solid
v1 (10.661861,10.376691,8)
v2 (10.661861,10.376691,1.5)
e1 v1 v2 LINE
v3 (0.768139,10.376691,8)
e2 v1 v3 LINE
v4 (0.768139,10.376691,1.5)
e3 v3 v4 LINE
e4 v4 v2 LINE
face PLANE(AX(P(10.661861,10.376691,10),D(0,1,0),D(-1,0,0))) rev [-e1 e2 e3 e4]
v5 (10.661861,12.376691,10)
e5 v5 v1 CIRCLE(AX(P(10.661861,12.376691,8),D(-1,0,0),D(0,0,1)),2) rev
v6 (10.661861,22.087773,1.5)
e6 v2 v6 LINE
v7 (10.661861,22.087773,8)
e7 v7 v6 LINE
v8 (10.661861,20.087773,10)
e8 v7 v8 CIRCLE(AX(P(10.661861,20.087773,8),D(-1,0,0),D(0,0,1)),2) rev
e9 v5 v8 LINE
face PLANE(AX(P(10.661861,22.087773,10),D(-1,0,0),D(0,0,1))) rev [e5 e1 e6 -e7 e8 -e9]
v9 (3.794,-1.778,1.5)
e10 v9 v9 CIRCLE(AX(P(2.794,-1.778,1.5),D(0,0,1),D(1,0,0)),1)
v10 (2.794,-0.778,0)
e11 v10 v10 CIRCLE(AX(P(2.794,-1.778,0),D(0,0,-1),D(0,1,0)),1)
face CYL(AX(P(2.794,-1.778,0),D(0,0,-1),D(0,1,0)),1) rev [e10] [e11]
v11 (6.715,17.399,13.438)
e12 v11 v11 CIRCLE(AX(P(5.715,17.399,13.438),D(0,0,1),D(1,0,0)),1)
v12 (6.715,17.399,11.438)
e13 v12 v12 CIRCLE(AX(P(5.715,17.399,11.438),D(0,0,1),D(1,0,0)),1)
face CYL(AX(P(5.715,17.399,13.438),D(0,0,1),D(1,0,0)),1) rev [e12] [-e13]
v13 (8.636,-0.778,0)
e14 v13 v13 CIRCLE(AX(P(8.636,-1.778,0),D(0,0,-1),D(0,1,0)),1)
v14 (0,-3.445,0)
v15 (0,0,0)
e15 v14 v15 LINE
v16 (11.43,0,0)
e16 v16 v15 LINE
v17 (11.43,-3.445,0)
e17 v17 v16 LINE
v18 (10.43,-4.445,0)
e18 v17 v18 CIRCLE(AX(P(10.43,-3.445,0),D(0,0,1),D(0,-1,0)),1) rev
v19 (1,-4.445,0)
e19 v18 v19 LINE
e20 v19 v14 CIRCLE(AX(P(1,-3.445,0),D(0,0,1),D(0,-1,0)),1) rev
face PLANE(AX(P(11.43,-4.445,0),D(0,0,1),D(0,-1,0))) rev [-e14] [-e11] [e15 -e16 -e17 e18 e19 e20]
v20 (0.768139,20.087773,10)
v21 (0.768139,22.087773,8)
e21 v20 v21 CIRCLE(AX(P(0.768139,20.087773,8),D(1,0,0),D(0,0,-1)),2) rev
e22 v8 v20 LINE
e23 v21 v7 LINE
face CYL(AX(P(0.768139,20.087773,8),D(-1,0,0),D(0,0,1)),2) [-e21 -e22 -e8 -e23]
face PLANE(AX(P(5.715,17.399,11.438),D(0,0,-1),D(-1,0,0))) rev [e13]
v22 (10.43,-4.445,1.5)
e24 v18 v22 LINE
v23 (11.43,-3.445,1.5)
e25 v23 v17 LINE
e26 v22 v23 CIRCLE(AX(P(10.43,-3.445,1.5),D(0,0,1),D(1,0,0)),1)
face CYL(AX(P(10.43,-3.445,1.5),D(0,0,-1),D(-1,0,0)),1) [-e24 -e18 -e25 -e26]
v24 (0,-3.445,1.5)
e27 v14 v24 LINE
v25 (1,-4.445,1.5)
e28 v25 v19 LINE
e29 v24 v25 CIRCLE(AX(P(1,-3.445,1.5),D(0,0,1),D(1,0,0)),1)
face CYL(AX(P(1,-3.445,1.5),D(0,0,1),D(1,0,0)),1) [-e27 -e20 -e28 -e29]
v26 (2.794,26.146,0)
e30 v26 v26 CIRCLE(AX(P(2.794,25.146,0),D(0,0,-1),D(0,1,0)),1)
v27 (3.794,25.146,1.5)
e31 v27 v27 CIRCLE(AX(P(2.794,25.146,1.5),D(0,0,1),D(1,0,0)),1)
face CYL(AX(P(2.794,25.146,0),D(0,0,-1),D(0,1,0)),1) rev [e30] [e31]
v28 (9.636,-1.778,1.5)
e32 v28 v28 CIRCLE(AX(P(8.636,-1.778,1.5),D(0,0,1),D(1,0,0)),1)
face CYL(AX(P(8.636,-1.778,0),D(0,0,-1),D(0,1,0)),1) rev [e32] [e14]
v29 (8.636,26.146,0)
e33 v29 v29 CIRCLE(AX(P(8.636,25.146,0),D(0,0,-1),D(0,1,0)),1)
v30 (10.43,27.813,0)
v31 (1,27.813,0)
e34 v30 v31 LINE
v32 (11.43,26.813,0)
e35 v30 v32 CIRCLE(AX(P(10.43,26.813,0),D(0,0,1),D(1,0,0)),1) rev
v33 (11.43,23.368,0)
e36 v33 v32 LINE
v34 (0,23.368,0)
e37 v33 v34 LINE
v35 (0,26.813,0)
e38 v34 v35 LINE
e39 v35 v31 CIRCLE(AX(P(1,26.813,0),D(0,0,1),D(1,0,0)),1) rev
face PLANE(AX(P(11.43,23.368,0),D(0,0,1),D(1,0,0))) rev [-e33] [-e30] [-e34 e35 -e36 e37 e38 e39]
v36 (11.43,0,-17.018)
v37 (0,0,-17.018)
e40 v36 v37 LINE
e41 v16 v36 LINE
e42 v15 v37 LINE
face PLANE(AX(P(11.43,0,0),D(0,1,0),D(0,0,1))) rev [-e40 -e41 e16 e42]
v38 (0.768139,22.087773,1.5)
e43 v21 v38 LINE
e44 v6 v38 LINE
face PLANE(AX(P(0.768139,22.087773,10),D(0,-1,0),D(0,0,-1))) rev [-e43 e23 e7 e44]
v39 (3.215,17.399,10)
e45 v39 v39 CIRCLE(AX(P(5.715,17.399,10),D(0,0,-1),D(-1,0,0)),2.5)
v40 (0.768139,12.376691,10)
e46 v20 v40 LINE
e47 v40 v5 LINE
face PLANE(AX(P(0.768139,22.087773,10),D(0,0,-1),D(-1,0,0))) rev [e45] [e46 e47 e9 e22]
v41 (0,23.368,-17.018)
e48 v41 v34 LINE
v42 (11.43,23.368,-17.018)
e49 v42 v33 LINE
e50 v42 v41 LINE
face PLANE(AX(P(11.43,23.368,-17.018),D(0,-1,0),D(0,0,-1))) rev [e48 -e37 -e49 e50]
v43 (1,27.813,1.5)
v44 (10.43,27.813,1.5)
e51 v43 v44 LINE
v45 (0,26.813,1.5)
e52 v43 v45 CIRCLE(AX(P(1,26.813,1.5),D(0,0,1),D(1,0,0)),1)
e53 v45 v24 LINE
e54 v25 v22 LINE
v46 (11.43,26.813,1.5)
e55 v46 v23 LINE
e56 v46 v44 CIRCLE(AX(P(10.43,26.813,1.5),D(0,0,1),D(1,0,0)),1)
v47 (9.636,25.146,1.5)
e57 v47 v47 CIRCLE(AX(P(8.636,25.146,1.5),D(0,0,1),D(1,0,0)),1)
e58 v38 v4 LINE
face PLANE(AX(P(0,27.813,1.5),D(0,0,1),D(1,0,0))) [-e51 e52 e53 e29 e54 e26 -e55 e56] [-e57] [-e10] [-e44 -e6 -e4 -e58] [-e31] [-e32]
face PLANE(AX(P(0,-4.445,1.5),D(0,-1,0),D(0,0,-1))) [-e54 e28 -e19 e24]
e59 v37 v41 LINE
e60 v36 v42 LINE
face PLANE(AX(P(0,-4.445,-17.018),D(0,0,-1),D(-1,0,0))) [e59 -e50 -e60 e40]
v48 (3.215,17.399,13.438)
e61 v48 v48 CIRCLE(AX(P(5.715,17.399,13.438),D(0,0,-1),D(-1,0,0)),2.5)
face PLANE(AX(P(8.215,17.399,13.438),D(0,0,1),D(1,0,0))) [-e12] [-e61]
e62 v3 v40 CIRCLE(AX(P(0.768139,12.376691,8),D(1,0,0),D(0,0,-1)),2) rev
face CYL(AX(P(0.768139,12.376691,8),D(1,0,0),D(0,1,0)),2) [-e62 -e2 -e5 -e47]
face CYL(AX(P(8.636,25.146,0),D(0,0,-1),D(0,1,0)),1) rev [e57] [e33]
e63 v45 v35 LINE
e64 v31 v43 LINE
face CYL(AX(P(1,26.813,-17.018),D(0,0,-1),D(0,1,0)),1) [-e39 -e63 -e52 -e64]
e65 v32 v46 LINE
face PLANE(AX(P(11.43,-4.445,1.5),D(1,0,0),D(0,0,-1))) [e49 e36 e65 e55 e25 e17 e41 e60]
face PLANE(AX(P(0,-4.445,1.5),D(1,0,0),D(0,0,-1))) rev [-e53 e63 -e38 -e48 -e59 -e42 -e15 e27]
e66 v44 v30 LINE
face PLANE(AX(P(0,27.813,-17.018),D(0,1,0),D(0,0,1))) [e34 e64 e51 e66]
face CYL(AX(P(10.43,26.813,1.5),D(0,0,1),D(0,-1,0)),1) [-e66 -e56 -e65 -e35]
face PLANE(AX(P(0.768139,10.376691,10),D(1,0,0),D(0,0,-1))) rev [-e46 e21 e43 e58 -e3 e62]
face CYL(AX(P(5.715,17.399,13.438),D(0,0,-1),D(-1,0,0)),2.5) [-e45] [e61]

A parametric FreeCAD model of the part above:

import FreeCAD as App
import Part
import Sketcher
from FreeCAD import Vector
Q = App.Units.Quantity


def edges_at(feature, points):
    """Names of the edges that pass closest to the given points."""
    edges = feature.Shape.Edges
    near = lambda p: min(range(len(edges)), key=lambda i: edges[i].distToShape(Part.Vertex(*p))[0])
    return sorted({f"Edge{near(p) + 1}" for p in points})


def add_polygon(sketch, points):
    """Adds a closed chain of lines whose ends are joined by coincident constraints."""
    first, n = sketch.GeometryCount, len(points)
    for a, b in zip(points, points[1:] + points[:1]):
        sketch.addGeometry(Part.LineSegment(App.Vector(*a, 0), App.Vector(*b, 0)), False)
    for i in range(n):
        sketch.addConstraint(Sketcher.Constraint("Coincident", first + i, 2, first + (i + 1) % n, 1))

doc = App.newDocument("Part")
body = doc.addObject("PartDesign::Body", "Body")

# Sketch on YZ plane
sketch1 = doc.addObject("Sketcher::SketchObject", "Sketch")
body.addObject(sketch1)
sketch1.AttachmentSupport = (doc.YZ_Plane, [""])
sketch1.MapMode = "FlatFace"
sketch1.AttachmentOffset = App.Placement(Vector(0, 0, 11.43), App.Rotation())
add_polygon(sketch1, [(27.813, 1.5), (-4.445, 1.5), (-4.445, -17.018), (27.813, -17.018)])  # lines 0-3
sketch1.addConstraint([
    Sketcher.Constraint("Horizontal", 0),
    Sketcher.Constraint("Vertical", 1),
    Sketcher.Constraint("Horizontal", 2),
    Sketcher.Constraint("Vertical", 3),
    Sketcher.Constraint("DistanceY", -1, 1, 0, 2, Q("1.5 mm")),
    Sketcher.Constraint("DistanceX", 0, 2, 0, 1, Q("32.258 mm")),
    Sketcher.Constraint("DistanceY", 1, 2, 1, 1, Q("18.518 mm")),
    Sketcher.Constraint("DistanceX", 0, 2, -1, 1, Q("4.445 mm")),
])
pad1 = doc.addObject("PartDesign::Pad", "Pad")
body.addObject(pad1)
pad1.Profile = sketch1
pad1.Length = 11.43
pad1.Reversed = True

# Sketch on YZ plane
sketch2 = doc.addObject("Sketcher::SketchObject", "Sketch001")
body.addObject(sketch2)
sketch2.AttachmentSupport = (doc.YZ_Plane, [""])
sketch2.MapMode = "FlatFace"
add_polygon(sketch2, [(0, -17.018), (-4.445, -17.018), (-4.445, 0), (0, 0)])  # lines 0-3
sketch2.addConstraint([
    Sketcher.Constraint("Horizontal", 0),
    Sketcher.Constraint("Vertical", 1),
    Sketcher.Constraint("Horizontal", 2),
    Sketcher.Constraint("Vertical", 3),
    Sketcher.Constraint("Coincident", 2, 2, -1, 1),
    Sketcher.Constraint("DistanceX", 0, 2, 0, 1, Q("4.445 mm")),
    Sketcher.Constraint("DistanceY", 1, 1, 1, 2, Q("17.018 mm")),
])
pocket1 = doc.addObject("PartDesign::Pocket", "Pocket")
body.addObject(pocket1)
pocket1.Profile = sketch2
pocket1.Type = "ThroughAll"
pocket1.Reversed = True

# Sketch on YZ plane
sketch3 = doc.addObject("Sketcher::SketchObject", "Sketch002")
body.addObject(sketch3)
sketch3.AttachmentSupport = (doc.YZ_Plane, [""])
sketch3.MapMode = "FlatFace"
add_polygon(sketch3, [(27.813, -17.018), (23.368, -17.018), (23.368, 0), (27.813, 0)])  # lines 0-3
sketch3.addConstraint([
    Sketcher.Constraint("Horizontal", 0),
    Sketcher.Constraint("Vertical", 1),
    Sketcher.Constraint("Horizontal", 2),
    Sketcher.Constraint("Vertical", 3),
    Sketcher.Constraint("PointOnObject", 1, 2, -1),
    Sketcher.Constraint("DistanceX", 0, 2, 0, 1, Q("4.445 mm")),
    Sketcher.Constraint("DistanceY", 1, 1, 1, 2, Q("17.018 mm")),
    Sketcher.Constraint("DistanceX", -1, 1, 0, 2, Q("23.368 mm")),
])
pocket2 = doc.addObject("PartDesign::Pocket", "Pocket001")
body.addObject(pocket2)
pocket2.Profile = sketch3
pocket2.Type = "ThroughAll"
pocket2.Reversed = True

# Sketch on XY plane
sketch4 = doc.addObject("Sketcher::SketchObject", "Sketch003")
body.addObject(sketch4)
sketch4.AttachmentSupport = (doc.XY_Plane, [""])
sketch4.MapMode = "FlatFace"
sketch4.AttachmentOffset = App.Placement(Vector(0, 0, 1.5), App.Rotation())
add_polygon(sketch4, [(0.768139, 22.087773), (0.768139, 10.376691), (10.661861, 10.376691), (10.661861, 22.087773)])  # lines 0-3
sketch4.addConstraint([
    Sketcher.Constraint("Vertical", 0),
    Sketcher.Constraint("Horizontal", 1),
    Sketcher.Constraint("Vertical", 2),
    Sketcher.Constraint("Horizontal", 3),
    Sketcher.Constraint("DistanceY", 0, 2, 0, 1, Q("11.711082 mm")),
    Sketcher.Constraint("DistanceX", 1, 1, 1, 2, Q("9.893723 mm")),
    Sketcher.Constraint("DistanceX", -1, 1, 0, 2, Q("0.768139 mm")),
    Sketcher.Constraint("DistanceY", -1, 1, 0, 2, Q("10.376691 mm")),
])
pad2 = doc.addObject("PartDesign::Pad", "Pad001")
body.addObject(pad2)
pad2.Profile = sketch4
pad2.Length = 8.5

# Sketch on XZ plane
sketch5 = doc.addObject("Sketcher::SketchObject", "Sketch004")
body.addObject(sketch5)
sketch5.AttachmentSupport = (doc.XZ_Plane, [""])
sketch5.MapMode = "FlatFace"
sketch5.AttachmentOffset = App.Placement(Vector(0, 0, -17.399), App.Rotation())
add_polygon(sketch5, [(5.715, 13.438), (5.715, 10), (8.215, 10), (8.215, 13.438)])  # lines 0-3
sketch5.addGeometry(Part.LineSegment(Vector(5.715, 13.438, 0), Vector(5.715, 10, 0)), True)  # axis
sketch5.addConstraint([
    Sketcher.Constraint("Vertical", 0),
    Sketcher.Constraint("Horizontal", 1),
    Sketcher.Constraint("Vertical", 2),
    Sketcher.Constraint("Horizontal", 3),
    Sketcher.Constraint("Vertical", 4),
    Sketcher.Constraint("Coincident", 4, 1, 3, 2),
    Sketcher.Constraint("Horizontal", 1, 2, 4, 2),
    Sketcher.Constraint("DistanceX", 1, 1, 1, 2, Q("2.5 mm")),
    Sketcher.Constraint("DistanceY", -1, 1, 0, 2, Q("10 mm")),
    Sketcher.Constraint("DistanceY", 0, 2, 0, 1, Q("3.438 mm")),
    Sketcher.Constraint("DistanceX", -1, 1, 0, 2, Q("5.715 mm")),
])
revolution = doc.addObject("PartDesign::Revolution", "Revolution")
body.addObject(revolution)
revolution.Profile = sketch5
revolution.ReferenceAxis = (sketch5, ["Axis0"])
revolution.Angle = 360

# Sketch on XY plane
sketch6 = doc.addObject("Sketcher::SketchObject", "Sketch005")
body.addObject(sketch6)
sketch6.AttachmentSupport = (doc.XY_Plane, [""])
sketch6.MapMode = "FlatFace"
sketch6.AttachmentOffset = App.Placement(Vector(0, 0, 13.438), App.Rotation())
sketch6.addGeometry(Part.Circle(Vector(5.715, 17.399, 0), Vector(0, 0, 1), 1), False)
sketch6.addConstraint([
    Sketcher.Constraint("Diameter", 0, Q("2 mm")),
    Sketcher.Constraint("DistanceX", -1, 1, 0, 3, Q("5.715 mm")),
    Sketcher.Constraint("DistanceY", -1, 1, 0, 3, Q("17.399 mm")),
])
doc.recompute()
hole = doc.addObject("PartDesign::Hole", "Hole")
body.addObject(hole)
hole.Profile = sketch6
hole.ThreadType = "None"
hole.Diameter = 2
hole.DepthType = "Dimension"
hole.Depth = 2
hole.DrillPoint = "Flat"

# Sketch on XY plane
sketch7 = doc.addObject("Sketcher::SketchObject", "Sketch006")
body.addObject(sketch7)
sketch7.AttachmentSupport = (doc.XY_Plane, [""])
sketch7.MapMode = "FlatFace"
sketch7.addGeometry([
    Part.Circle(Vector(2.794, -1.778, 0), Vector(0, 0, 1), 1),
    Part.Circle(Vector(8.636, -1.778, 0), Vector(0, 0, 1), 1),
    Part.Circle(Vector(8.636, 25.146, 0), Vector(0, 0, 1), 1),
    Part.Circle(Vector(2.794, 25.146, 0), Vector(0, 0, 1), 1),
], False)
sketch7.addConstraint([
    Sketcher.Constraint("Equal", 0, 1),
    Sketcher.Constraint("Equal", 1, 2),
    Sketcher.Constraint("Equal", 2, 3),
    Sketcher.Constraint("Horizontal", 0, 3, 1, 3),
    Sketcher.Constraint("Horizontal", 2, 3, 3, 3),
    Sketcher.Constraint("Vertical", 1, 3, 2, 3),
    Sketcher.Constraint("Vertical", 0, 3, 3, 3),
    Sketcher.Constraint("Diameter", 0, Q("2 mm")),
    Sketcher.Constraint("DistanceX", -1, 1, 0, 3, Q("2.794 mm")),
    Sketcher.Constraint("DistanceY", 0, 3, -1, 1, Q("1.778 mm")),
    Sketcher.Constraint("DistanceX", -1, 1, 1, 3, Q("8.636 mm")),
    Sketcher.Constraint("DistanceY", -1, 1, 2, 3, Q("25.146 mm")),
])
doc.recompute()
hole2 = doc.addObject("PartDesign::Hole", "Hole001")
body.addObject(hole2)
hole2.Profile = sketch7
hole2.ThreadType = "None"
hole2.Diameter = 2
hole2.DepthType = "Dimension"
hole2.Depth = 13.438
hole2.DrillPoint = "Flat"
hole2.Reversed = True
doc.recompute()

fillet = doc.addObject("PartDesign::Fillet", "Fillet")
body.addObject(fillet)
fillet.Base = (hole2, edges_at(hole2, [
    (11.43, 27.813, 0.75),
    (0, 27.813, 0.75),
    (11.43, -4.445, 0.75),
    (0, -4.445, 0.75),
]))
fillet.Radius = 1
doc.recompute()

fillet2 = doc.addObject("PartDesign::Fillet", "Fillet001")
body.addObject(fillet2)
fillet2.Base = (fillet, edges_at(fillet, [(5.715, 10.377, 10), (5.715, 22.088, 10)]))
fillet2.Radius = 2

doc.recompute()
